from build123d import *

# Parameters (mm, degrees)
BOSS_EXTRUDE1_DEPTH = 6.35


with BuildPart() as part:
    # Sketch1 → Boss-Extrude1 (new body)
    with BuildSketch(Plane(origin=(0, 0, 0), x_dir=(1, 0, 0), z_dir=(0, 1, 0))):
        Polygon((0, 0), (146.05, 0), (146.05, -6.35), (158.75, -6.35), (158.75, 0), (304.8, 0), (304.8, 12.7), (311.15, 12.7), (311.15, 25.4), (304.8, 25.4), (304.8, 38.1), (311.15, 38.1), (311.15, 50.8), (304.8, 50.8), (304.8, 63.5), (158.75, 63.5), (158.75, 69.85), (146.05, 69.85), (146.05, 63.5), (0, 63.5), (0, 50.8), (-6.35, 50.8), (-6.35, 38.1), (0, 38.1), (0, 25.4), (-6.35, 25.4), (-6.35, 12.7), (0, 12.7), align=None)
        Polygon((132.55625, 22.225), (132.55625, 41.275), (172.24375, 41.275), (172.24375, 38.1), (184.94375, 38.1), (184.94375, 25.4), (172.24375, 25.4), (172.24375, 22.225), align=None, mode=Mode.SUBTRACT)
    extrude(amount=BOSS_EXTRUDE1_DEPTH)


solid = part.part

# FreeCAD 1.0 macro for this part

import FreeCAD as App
import Part
import Sketcher
Q = App.Units.Quantity

doc = App.newDocument("Part")
params = doc.addObject("Spreadsheet::Sheet", "Params")
for row, (alias, value) in enumerate([
    ("sketch1_width", "0.5 in"),
    ("sketch1_height", "0.75 in"),
    ("sketch1_width2", "1.5625 in"),
    ("pad1_length", "0.25 in"),
], start=1):
    params.set(f"A{row}", alias)
    params.set(f"B{row}", "=" + value)
    params.setAlias(f"B{row}", alias)

body = doc.addObject("PartDesign::Body", "Body")

# Sketch on XZ plane
sketch1 = body.newObject("Sketcher::SketchObject", "Sketch")
sketch1.AttachmentSupport = (doc.getObject("XZ_Plane"), [""])
sketch1.MapMode = "FlatFace"
sketch1.addGeometry(Part.LineSegment(App.Vector(0, 0, 0), App.Vector(146.1, 0, 0)), False)
sketch1.addGeometry(Part.LineSegment(App.Vector(146.1, 0, 0), App.Vector(146.1, 6.3, 0)), False)
sketch1.addGeometry(Part.LineSegment(App.Vector(146.1, 6.3, 0), App.Vector(158.8, 6.3, 0)), False)
sketch1.addGeometry(Part.LineSegment(App.Vector(158.8, 6.3, 0), App.Vector(158.8, 0, 0)), False)
sketch1.addGeometry(Part.LineSegment(App.Vector(158.8, 0, 0), App.Vector(304.8, 0, 0)), False)
sketch1.addGeometry(Part.LineSegment(App.Vector(304.8, 0, 0), App.Vector(304.8, -12.7, 0)), False)
sketch1.addGeometry(Part.LineSegment(App.Vector(304.8, -12.7, 0), App.Vector(311.1, -12.7, 0)), False)
sketch1.addGeometry(Part.LineSegment(App.Vector(311.1, -12.7, 0), App.Vector(311.1, -25.4, 0)), False)
sketch1.addGeometry(Part.LineSegment(App.Vector(311.1, -25.4, 0), App.Vector(304.8, -25.4, 0)), False)
sketch1.addGeometry(Part.LineSegment(App.Vector(304.8, -25.4, 0), App.Vector(304.8, -38.1, 0)), False)
sketch1.addGeometry(Part.LineSegment(App.Vector(304.8, -38.1, 0), App.Vector(311.1, -38.1, 0)), False)
sketch1.addGeometry(Part.LineSegment(App.Vector(311.1, -38.1, 0), App.Vector(311.1, -50.8, 0)), False)
sketch1.addGeometry(Part.LineSegment(App.Vector(311.1, -50.8, 0), App.Vector(304.8, -50.8, 0)), False)
sketch1.addGeometry(Part.LineSegment(App.Vector(304.8, -50.8, 0), App.Vector(304.8, -63.5, 0)), False)
sketch1.addGeometry(Part.LineSegment(App.Vector(304.8, -63.5, 0), App.Vector(158.8, -63.5, 0)), False)
sketch1.addGeometry(Part.LineSegment(App.Vector(158.8, -63.5, 0), App.Vector(158.8, -69.8, 0)), False)
sketch1.addGeometry(Part.LineSegment(App.Vector(158.8, -69.8, 0), App.Vector(146.1, -69.8, 0)), False)
sketch1.addGeometry(Part.LineSegment(App.Vector(146.1, -69.8, 0), App.Vector(146.1, -63.5, 0)), False)
sketch1.addGeometry(Part.LineSegment(App.Vector(146.1, -63.5, 0), App.Vector(0, -63.5, 0)), False)
sketch1.addGeometry(Part.LineSegment(App.Vector(0, -63.5, 0), App.Vector(0, -50.8, 0)), False)
sketch1.addGeometry(Part.LineSegment(App.Vector(0, -50.8, 0), App.Vector(-6.3, -50.8, 0)), False)
sketch1.addGeometry(Part.LineSegment(App.Vector(-6.3, -50.8, 0), App.Vector(-6.3, -38.1, 0)), False)
sketch1.addGeometry(Part.LineSegment(App.Vector(-6.3, -38.1, 0), App.Vector(0, -38.1, 0)), False)
sketch1.addGeometry(Part.LineSegment(App.Vector(0, -38.1, 0), App.Vector(0, -25.4, 0)), False)
sketch1.addGeometry(Part.LineSegment(App.Vector(0, -25.4, 0), App.Vector(-6.3, -25.4, 0)), False)
sketch1.addGeometry(Part.LineSegment(App.Vector(-6.3, -25.4, 0), App.Vector(-6.3, -12.7, 0)), False)
sketch1.addGeometry(Part.LineSegment(App.Vector(-6.3, -12.7, 0), App.Vector(0, -12.7, 0)), False)
sketch1.addGeometry(Part.LineSegment(App.Vector(0, -12.7, 0), App.Vector(0, 0, 0)), False)
sketch1.addGeometry(Part.LineSegment(App.Vector(172.2, -22.2, 0), App.Vector(132.6, -22.2, 0)), False)
sketch1.addGeometry(Part.LineSegment(App.Vector(132.6, -22.2, 0), App.Vector(132.6, -41.3, 0)), False)
sketch1.addGeometry(Part.LineSegment(App.Vector(132.6, -41.3, 0), App.Vector(172.2, -41.3, 0)), False)
sketch1.addGeometry(Part.LineSegment(App.Vector(172.2, -41.3, 0), App.Vector(172.2, -38.1, 0)), False)
sketch1.addGeometry(Part.LineSegment(App.Vector(172.2, -38.1, 0), App.Vector(184.9, -38.1, 0)), False)
sketch1.addGeometry(Part.LineSegment(App.Vector(184.9, -38.1, 0), App.Vector(184.9, -25.4, 0)), False)
sketch1.addGeometry(Part.LineSegment(App.Vector(184.9, -25.4, 0), App.Vector(172.2, -25.4, 0)), False)
sketch1.addGeometry(Part.LineSegment(App.Vector(172.2, -25.4, 0), App.Vector(172.2, -22.2, 0)), False)
sketch1.addConstraint(Sketcher.Constraint("Coincident", 0, 2, 1, 1))
sketch1.addConstraint(Sketcher.Constraint("Coincident", 1, 2, 2, 1))
sketch1.addConstraint(Sketcher.Constraint("Coincident", 2, 2, 3, 1))
sketch1.addConstraint(Sketcher.Constraint("Coincident", 3, 2, 4, 1))
sketch1.addConstraint(Sketcher.Constraint("Coincident", 4, 2, 5, 1))
sketch1.addConstraint(Sketcher.Constraint("Coincident", 5, 2, 6, 1))
sketch1.addConstraint(Sketcher.Constraint("Coincident", 6, 2, 7, 1))
sketch1.addConstraint(Sketcher.Constraint("Coincident", 7, 2, 8, 1))
sketch1.addConstraint(Sketcher.Constraint("Coincident", 8, 2, 9, 1))
sketch1.addConstraint(Sketcher.Constraint("Coincident", 9, 2, 10, 1))
sketch1.addConstraint(Sketcher.Constraint("Coincident", 10, 2, 11, 1))
sketch1.addConstraint(Sketcher.Constraint("Coincident", 11, 2, 12, 1))
sketch1.addConstraint(Sketcher.Constraint("Coincident", 12, 2, 13, 1))
sketch1.addConstraint(Sketcher.Constraint("Coincident", 13, 2, 14, 1))
sketch1.addConstraint(Sketcher.Constraint("Coincident", 14, 2, 15, 1))
sketch1.addConstraint(Sketcher.Constraint("Coincident", 15, 2, 16, 1))
sketch1.addConstraint(Sketcher.Constraint("Coincident", 16, 2, 17, 1))
sketch1.addConstraint(Sketcher.Constraint("Coincident", 17, 2, 18, 1))
sketch1.addConstraint(Sketcher.Constraint("Coincident", 18, 2, 19, 1))
sketch1.addConstraint(Sketcher.Constraint("Coincident", 19, 2, 20, 1))
sketch1.addConstraint(Sketcher.Constraint("Coincident", 20, 2, 21, 1))
sketch1.addConstraint(Sketcher.Constraint("Coincident", 21, 2, 22, 1))
sketch1.addConstraint(Sketcher.Constraint("Coincident", 22, 2, 23, 1))
sketch1.addConstraint(Sketcher.Constraint("Coincident", 23, 2, 24, 1))
sketch1.addConstraint(Sketcher.Constraint("Coincident", 24, 2, 25, 1))
sketch1.addConstraint(Sketcher.Constraint("Coincident", 25, 2, 26, 1))
sketch1.addConstraint(Sketcher.Constraint("Coincident", 26, 2, 27, 1))
sketch1.addConstraint(Sketcher.Constraint("Coincident", 27, 2, 0, 1))
sketch1.addConstraint(Sketcher.Constraint("Coincident", 28, 2, 29, 1))
sketch1.addConstraint(Sketcher.Constraint("Coincident", 29, 2, 30, 1))
sketch1.addConstraint(Sketcher.Constraint("Coincident", 30, 2, 31, 1))
sketch1.addConstraint(Sketcher.Constraint("Coincident", 31, 2, 32, 1))
sketch1.addConstraint(Sketcher.Constraint("Coincident", 32, 2, 33, 1))
sketch1.addConstraint(Sketcher.Constraint("Coincident", 33, 2, 34, 1))
sketch1.addConstraint(Sketcher.Constraint("Coincident", 34, 2, 35, 1))
sketch1.addConstraint(Sketcher.Constraint("Coincident", 35, 2, 28, 1))
sketch1.addConstraint(Sketcher.Constraint("Horizontal", 0))
sketch1.addConstraint(Sketcher.Constraint("Vertical", 1))
sketch1.addConstraint(Sketcher.Constraint("Horizontal", 2))
sketch1.addConstraint(Sketcher.Constraint("Vertical", 3))
sketch1.addConstraint(Sketcher.Constraint("Horizontal", 4))
sketch1.addConstraint(Sketcher.Constraint("Vertical", 5))
sketch1.addConstraint(Sketcher.Constraint("Horizontal", 6))
sketch1.addConstraint(Sketcher.Constraint("Vertical", 7))
sketch1.addConstraint(Sketcher.Constraint("Horizontal", 8))
sketch1.addConstraint(Sketcher.Constraint("Vertical", 9))
sketch1.addConstraint(Sketcher.Constraint("Horizontal", 10))
sketch1.addConstraint(Sketcher.Constraint("Vertical", 11))
sketch1.addConstraint(Sketcher.Constraint("Horizontal", 12))
sketch1.addConstraint(Sketcher.Constraint("Vertical", 13))
sketch1.addConstraint(Sketcher.Constraint("Horizontal", 14))
sketch1.addConstraint(Sketcher.Constraint("Vertical", 15))
sketch1.addConstraint(Sketcher.Constraint("Horizontal", 16))
sketch1.addConstraint(Sketcher.Constraint("Vertical", 17))
sketch1.addConstraint(Sketcher.Constraint("Horizontal", 18))
sketch1.addConstraint(Sketcher.Constraint("Vertical", 19))
sketch1.addConstraint(Sketcher.Constraint("Horizontal", 20))
sketch1.addConstraint(Sketcher.Constraint("Vertical", 21))
sketch1.addConstraint(Sketcher.Constraint("Horizontal", 22))
sketch1.addConstraint(Sketcher.Constraint("Vertical", 23))
sketch1.addConstraint(Sketcher.Constraint("Horizontal", 24))
sketch1.addConstraint(Sketcher.Constraint("Vertical", 25))
sketch1.addConstraint(Sketcher.Constraint("Horizontal", 26))
sketch1.addConstraint(Sketcher.Constraint("Vertical", 27))
sketch1.addConstraint(Sketcher.Constraint("Horizontal", 28))
sketch1.addConstraint(Sketcher.Constraint("Vertical", 29))
sketch1.addConstraint(Sketcher.Constraint("Horizontal", 30))
sketch1.addConstraint(Sketcher.Constraint("Vertical", 31))
sketch1.addConstraint(Sketcher.Constraint("Horizontal", 32))
sketch1.addConstraint(Sketcher.Constraint("Vertical", 33))
sketch1.addConstraint(Sketcher.Constraint("Horizontal", 34))
sketch1.addConstraint(Sketcher.Constraint("Vertical", 35))
sketch1.addConstraint(Sketcher.Constraint("Coincident", 27, 2, -1, 1))
sketch1.addConstraint(Sketcher.Constraint("PointOnObject", 3, 2, -1))
sketch1.addConstraint(Sketcher.Constraint("PointOnObject", 18, 2, -2))
sketch1.addConstraint(Sketcher.Constraint("PointOnObject", 22, 2, -2))
sketch1.addConstraint(Sketcher.Constraint("Horizontal", 14, 2, 17, 2))
sketch1.addConstraint(Sketcher.Constraint("Horizontal", 12, 2, 19, 2))
sketch1.addConstraint(Sketcher.Constraint("Horizontal", 10, 2, 21, 2))
sketch1.addConstraint(Sketcher.Constraint("Horizontal", 8, 2, 23, 2))
sketch1.addConstraint(Sketcher.Constraint("Horizontal", 6, 2, 25, 2))
sketch1.addConstraint(Sketcher.Constraint("Horizontal", 22, 2, 31, 2))
sketch1.addConstraint(Sketcher.Constraint("Horizontal", 24, 2, 33, 2))
sketch1.addConstraint(Sketcher.Constraint("Vertical", 5, 2, 8, 2))
sketch1.addConstraint(Sketcher.Constraint("Vertical", 7, 2, 10, 2))
sketch1.addConstraint(Sketcher.Constraint("Vertical", 9, 2, 12, 2))
sketch1.addConstraint(Sketcher.Constraint("Vertical", 3, 2, 14, 2))
sketch1.addConstraint(Sketcher.Constraint("Vertical", 1, 2, 16, 2))
sketch1.addConstraint(Sketcher.Constraint("Vertical", 21, 2, 24, 2))
sketch1.addConstraint(Sketcher.Constraint("Vertical", 31, 2, 34, 2))
sketch1.addConstraint(Sketcher.Constraint("Equal", 0, 4))
sketch1.addConstraint(Sketcher.Constraint("Equal", 12, 20))
sketch1.addConstraint(Sketcher.Constraint("Equal", 16, 32))
sketch1.addConstraint(Sketcher.Constraint("Equal", 26, 1))
sketch1.addConstraint(Sketcher.Constraint("Equal", 34, 5))
sketch1.addConstraint(Sketcher.Constraint("Equal", 5, 7))
sketch1.addConstraint(Sketcher.Constraint("Equal", 7, 9))
sketch1.addConstraint(Sketcher.Constraint("Equal", 9, 11))
sketch1.addConstraint(Sketcher.Constraint("Equal", 11, 13))
sketch1.addConstraint(Sketcher.Constraint("Equal", 3, 15))
sketch1.addConstraint(Sketcher.Constraint("Equal", 31, 35))
sketch1.addConstraint(Sketcher.Constraint("DistanceX", 2, 1, 2, 2, Q("0.5 in")))
sketch1.addConstraint(Sketcher.Constraint("DistanceX", -1, 1, 4, 2, Q("12 in")))
sketch1.addConstraint(Sketcher.Constraint("DistanceX", 3, 2, 6, 2, Q("6 in")))
sketch1.addConstraint(Sketcher.Constraint("DistanceY", 29, 2, 29, 1, Q("0.75 in")))
sketch1.addConstraint(Sketcher.Constraint("DistanceX", 28, 2, 28, 1, Q("1.5625 in")))
sketch1.addConstraint(Sketcher.Constraint("DistanceX", -1, 1, 28, 2, Q("5.21875 in")))
sketch1.setExpression("Constraints[101]", "Params.sketch1_width")
sketch1.setExpression("Constraints[104]", "Params.sketch1_height")
sketch1.setExpression("Constraints[105]", "Params.sketch1_width2")
pad1 = body.newObject("PartDesign::Pad", "Pad")
pad1.Profile = sketch1
pad1.setExpression("Length", "Params.pad1_length")
pad1.Reversed = True

doc.recompute()
